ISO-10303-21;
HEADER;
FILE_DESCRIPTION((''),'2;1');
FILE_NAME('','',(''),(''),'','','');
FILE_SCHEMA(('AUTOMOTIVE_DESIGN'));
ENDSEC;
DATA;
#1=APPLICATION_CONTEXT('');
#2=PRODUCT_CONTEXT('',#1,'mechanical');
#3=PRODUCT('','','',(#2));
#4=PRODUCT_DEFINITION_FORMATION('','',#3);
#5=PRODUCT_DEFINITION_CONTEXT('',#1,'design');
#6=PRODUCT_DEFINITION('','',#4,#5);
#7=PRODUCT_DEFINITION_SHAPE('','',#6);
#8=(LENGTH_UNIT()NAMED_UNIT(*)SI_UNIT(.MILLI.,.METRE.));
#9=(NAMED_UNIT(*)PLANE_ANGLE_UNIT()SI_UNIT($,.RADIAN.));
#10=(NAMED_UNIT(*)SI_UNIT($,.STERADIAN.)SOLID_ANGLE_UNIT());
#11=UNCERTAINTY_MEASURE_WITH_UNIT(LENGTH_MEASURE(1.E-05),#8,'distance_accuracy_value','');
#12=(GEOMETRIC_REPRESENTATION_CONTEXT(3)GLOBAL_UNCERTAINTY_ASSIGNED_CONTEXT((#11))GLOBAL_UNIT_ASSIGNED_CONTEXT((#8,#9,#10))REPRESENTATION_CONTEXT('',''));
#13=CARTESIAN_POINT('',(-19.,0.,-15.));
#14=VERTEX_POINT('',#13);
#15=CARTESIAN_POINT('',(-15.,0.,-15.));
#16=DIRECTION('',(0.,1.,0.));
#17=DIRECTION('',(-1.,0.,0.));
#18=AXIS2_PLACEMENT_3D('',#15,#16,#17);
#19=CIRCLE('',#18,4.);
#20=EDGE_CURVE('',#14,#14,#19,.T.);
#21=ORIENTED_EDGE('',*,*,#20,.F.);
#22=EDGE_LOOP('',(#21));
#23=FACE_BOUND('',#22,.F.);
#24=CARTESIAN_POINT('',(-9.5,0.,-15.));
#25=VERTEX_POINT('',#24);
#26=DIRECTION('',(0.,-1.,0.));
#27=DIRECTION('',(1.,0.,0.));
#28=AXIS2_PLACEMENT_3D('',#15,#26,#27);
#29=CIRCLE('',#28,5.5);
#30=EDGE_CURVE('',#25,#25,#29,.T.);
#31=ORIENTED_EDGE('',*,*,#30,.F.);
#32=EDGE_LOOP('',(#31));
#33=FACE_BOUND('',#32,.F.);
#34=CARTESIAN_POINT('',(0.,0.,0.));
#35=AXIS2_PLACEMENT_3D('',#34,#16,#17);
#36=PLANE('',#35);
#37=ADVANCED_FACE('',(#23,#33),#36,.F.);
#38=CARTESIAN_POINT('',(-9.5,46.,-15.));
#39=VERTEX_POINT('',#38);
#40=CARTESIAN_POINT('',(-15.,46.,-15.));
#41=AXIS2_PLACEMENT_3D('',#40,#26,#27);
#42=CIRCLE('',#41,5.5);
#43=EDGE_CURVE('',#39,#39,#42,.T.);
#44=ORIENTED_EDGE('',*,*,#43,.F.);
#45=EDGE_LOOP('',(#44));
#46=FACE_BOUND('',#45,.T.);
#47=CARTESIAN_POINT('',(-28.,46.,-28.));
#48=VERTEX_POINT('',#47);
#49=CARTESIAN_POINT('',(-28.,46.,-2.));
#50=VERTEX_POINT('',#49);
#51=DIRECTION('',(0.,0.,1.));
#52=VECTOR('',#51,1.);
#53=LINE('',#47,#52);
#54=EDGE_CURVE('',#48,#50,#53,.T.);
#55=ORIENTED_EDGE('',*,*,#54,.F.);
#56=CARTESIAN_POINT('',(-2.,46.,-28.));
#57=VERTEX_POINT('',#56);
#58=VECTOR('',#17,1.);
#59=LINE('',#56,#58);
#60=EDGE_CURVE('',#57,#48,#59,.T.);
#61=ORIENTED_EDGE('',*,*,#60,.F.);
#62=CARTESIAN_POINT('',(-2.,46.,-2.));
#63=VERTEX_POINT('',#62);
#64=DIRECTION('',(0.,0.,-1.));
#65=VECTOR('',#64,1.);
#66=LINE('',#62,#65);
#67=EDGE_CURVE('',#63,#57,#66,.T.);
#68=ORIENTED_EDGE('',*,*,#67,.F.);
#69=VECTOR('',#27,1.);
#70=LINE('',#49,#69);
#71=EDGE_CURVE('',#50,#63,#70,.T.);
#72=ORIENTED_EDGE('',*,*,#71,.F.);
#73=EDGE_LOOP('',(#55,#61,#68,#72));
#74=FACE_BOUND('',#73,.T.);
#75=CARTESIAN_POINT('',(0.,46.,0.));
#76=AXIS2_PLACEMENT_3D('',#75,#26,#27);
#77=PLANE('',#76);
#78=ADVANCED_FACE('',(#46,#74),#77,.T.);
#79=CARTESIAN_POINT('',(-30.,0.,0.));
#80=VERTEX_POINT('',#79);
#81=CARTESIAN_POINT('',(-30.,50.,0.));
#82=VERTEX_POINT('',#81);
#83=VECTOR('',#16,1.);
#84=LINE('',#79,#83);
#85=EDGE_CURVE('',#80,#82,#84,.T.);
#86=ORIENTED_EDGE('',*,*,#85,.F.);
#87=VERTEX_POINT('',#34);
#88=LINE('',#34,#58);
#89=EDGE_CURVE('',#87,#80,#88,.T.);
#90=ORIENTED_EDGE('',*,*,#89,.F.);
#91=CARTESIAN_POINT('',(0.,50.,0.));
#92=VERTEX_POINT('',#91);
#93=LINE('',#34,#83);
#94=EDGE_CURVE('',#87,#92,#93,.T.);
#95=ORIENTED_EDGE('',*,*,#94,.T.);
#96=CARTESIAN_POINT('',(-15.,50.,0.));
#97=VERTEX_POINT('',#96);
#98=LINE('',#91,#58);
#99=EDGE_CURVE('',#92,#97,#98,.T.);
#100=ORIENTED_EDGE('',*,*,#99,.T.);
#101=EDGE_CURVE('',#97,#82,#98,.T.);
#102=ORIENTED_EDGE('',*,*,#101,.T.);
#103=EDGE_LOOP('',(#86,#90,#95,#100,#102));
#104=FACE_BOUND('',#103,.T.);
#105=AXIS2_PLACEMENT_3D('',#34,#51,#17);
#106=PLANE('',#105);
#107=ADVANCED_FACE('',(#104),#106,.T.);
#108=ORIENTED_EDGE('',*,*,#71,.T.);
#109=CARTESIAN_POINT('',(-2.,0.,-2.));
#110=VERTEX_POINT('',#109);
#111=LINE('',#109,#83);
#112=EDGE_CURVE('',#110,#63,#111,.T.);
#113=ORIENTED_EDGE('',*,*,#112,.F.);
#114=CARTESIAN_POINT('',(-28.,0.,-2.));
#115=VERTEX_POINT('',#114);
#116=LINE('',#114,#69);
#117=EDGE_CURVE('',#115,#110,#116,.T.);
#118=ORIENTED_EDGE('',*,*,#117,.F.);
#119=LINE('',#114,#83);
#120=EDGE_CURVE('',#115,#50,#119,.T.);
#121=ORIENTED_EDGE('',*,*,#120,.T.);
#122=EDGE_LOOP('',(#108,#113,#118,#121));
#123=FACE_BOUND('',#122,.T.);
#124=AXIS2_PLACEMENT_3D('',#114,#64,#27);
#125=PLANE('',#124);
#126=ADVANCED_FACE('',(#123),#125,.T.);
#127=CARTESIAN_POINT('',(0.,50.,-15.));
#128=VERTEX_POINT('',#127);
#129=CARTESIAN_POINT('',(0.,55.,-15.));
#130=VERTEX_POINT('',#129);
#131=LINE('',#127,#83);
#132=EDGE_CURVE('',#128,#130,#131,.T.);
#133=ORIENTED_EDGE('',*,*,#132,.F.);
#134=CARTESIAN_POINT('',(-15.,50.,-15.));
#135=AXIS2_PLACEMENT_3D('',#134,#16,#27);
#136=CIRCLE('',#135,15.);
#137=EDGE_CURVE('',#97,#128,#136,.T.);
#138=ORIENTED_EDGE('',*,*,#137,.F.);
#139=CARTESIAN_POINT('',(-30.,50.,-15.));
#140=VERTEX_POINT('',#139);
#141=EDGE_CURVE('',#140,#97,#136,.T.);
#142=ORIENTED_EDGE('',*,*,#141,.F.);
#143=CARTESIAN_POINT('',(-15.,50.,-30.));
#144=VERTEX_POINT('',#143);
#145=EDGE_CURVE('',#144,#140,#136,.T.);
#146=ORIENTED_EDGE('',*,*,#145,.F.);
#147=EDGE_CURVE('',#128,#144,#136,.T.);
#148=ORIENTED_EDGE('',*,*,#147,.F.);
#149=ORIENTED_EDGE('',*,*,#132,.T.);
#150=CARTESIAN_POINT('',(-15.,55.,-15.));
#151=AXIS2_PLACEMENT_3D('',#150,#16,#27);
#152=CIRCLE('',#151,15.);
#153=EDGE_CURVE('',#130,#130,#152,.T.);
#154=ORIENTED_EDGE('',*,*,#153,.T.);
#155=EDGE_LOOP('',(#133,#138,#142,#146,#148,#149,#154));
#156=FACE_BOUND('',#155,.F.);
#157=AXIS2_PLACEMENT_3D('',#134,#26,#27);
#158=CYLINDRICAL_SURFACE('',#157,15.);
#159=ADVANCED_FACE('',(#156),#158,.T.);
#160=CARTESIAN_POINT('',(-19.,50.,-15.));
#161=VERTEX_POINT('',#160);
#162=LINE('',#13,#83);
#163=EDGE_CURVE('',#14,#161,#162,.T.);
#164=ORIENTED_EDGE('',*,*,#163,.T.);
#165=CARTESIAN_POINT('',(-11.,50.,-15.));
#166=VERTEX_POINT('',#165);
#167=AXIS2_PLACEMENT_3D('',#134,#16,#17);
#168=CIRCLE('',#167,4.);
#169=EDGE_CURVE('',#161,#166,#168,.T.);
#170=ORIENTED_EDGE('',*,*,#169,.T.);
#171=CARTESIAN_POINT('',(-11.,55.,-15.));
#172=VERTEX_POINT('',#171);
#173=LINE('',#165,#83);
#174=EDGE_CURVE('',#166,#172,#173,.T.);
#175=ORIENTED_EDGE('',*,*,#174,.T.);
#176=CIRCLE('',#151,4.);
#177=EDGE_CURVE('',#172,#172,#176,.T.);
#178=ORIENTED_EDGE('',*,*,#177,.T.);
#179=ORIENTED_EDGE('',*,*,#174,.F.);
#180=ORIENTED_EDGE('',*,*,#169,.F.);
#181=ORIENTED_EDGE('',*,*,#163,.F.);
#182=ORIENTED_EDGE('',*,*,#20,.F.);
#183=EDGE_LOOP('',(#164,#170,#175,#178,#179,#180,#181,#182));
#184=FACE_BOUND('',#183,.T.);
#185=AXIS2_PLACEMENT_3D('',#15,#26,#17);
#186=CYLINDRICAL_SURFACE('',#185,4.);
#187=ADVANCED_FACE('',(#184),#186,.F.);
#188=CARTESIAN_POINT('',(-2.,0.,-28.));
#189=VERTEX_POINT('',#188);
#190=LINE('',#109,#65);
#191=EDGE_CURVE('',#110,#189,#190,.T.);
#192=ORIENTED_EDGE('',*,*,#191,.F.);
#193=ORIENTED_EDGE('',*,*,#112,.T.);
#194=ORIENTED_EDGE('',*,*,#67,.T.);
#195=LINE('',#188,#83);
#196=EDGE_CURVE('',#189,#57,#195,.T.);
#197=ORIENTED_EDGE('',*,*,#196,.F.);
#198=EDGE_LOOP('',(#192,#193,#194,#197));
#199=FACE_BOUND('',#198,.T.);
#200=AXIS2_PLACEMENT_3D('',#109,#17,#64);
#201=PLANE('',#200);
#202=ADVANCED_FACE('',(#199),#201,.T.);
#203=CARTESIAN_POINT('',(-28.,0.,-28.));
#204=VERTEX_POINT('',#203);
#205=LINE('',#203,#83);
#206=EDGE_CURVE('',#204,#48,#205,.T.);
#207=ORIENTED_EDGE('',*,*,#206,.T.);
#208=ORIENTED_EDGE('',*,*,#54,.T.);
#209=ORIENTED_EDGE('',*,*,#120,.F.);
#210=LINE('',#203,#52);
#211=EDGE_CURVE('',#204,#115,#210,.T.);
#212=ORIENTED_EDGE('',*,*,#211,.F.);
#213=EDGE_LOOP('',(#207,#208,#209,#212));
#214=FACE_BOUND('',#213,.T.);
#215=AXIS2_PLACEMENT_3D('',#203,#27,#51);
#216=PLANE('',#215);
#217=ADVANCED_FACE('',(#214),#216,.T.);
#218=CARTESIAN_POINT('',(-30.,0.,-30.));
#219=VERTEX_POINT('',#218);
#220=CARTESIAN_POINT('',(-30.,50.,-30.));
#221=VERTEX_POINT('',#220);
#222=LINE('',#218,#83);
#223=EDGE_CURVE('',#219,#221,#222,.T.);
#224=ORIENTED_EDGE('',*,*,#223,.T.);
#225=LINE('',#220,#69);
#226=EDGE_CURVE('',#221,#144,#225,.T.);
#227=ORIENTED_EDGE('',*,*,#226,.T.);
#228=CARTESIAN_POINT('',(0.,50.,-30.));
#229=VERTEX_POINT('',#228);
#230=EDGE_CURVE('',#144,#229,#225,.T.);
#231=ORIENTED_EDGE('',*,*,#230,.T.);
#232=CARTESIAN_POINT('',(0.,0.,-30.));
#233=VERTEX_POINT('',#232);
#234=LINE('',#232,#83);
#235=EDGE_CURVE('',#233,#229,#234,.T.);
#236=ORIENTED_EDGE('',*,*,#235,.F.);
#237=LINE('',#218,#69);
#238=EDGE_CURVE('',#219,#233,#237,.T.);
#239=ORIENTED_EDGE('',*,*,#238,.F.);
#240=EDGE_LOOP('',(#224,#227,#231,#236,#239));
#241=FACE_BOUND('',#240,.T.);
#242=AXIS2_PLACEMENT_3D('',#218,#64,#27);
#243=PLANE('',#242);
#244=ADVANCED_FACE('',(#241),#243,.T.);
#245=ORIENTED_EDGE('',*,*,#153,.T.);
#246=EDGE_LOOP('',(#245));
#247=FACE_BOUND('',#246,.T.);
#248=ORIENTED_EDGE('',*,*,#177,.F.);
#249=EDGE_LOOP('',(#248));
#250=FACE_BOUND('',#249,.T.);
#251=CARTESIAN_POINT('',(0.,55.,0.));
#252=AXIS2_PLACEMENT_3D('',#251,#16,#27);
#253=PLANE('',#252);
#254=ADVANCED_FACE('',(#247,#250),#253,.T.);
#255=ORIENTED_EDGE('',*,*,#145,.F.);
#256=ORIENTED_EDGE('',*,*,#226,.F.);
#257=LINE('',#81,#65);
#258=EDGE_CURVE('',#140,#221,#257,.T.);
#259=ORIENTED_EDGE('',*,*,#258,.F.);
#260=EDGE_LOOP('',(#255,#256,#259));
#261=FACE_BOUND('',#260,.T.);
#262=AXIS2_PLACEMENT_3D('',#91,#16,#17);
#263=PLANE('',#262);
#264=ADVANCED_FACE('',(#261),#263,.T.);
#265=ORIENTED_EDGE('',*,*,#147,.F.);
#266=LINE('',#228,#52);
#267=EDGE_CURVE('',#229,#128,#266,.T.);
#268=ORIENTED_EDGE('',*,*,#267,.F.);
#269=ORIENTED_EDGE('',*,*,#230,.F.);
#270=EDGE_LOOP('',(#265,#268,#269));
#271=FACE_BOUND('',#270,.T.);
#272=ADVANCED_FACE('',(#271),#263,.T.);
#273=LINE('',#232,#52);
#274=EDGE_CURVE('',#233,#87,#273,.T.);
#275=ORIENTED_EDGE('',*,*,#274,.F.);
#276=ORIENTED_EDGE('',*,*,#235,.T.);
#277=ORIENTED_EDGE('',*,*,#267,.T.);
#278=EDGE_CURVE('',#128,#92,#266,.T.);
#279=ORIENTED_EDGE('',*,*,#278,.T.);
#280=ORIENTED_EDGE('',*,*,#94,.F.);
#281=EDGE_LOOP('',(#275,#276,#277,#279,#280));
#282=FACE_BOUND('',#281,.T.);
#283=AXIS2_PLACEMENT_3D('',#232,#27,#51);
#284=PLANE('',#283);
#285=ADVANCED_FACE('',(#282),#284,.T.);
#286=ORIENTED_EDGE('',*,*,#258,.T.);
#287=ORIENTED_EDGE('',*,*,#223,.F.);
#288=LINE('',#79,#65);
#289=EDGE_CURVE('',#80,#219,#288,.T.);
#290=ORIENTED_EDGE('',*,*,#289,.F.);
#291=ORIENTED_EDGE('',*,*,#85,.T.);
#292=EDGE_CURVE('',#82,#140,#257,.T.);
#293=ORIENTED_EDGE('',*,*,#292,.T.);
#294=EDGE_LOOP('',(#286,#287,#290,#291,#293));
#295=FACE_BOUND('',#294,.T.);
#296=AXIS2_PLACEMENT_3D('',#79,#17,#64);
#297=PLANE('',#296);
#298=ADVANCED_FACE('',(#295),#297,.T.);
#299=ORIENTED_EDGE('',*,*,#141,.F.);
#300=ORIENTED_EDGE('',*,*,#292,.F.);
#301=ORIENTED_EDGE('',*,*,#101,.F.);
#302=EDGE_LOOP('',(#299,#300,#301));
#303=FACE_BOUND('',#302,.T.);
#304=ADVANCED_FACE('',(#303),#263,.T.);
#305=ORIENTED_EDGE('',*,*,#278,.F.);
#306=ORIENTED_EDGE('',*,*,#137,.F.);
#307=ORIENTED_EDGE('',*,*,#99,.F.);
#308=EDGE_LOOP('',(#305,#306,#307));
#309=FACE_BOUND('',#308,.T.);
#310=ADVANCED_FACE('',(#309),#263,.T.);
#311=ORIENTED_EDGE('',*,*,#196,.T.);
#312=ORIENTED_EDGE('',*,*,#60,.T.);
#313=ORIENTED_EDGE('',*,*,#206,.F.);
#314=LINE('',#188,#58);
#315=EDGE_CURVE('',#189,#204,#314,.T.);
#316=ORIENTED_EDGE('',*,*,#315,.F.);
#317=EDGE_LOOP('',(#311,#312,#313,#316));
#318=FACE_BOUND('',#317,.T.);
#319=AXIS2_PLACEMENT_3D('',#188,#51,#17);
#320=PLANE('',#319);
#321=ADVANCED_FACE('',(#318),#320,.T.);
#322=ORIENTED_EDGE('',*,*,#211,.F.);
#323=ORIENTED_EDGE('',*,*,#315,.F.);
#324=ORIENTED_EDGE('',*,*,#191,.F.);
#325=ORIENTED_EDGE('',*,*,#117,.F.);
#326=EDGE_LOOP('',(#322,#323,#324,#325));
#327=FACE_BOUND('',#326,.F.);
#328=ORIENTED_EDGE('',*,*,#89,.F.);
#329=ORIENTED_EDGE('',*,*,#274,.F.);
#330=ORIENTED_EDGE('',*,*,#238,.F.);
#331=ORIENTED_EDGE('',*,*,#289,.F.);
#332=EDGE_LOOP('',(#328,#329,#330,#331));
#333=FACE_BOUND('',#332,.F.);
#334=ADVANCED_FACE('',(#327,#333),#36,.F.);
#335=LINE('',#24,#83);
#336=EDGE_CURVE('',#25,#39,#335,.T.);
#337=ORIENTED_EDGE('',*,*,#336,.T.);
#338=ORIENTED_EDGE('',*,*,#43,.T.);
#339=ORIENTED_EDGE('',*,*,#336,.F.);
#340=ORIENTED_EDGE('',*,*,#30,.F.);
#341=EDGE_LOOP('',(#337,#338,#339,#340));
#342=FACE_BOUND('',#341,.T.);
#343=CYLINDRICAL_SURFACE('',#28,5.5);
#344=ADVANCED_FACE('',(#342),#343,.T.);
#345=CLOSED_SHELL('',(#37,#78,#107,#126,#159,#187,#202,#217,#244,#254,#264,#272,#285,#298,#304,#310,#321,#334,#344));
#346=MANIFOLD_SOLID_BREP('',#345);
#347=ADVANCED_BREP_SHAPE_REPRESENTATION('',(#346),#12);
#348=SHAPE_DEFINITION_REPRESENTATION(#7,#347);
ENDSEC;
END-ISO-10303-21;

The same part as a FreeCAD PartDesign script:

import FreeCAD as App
import Part
import Sketcher
from FreeCAD import Vector

doc = App.newDocument("Part")
body = doc.addObject("PartDesign::Body", "Body")

# Sketch on XZ plane
sketch1 = body.newObject("Sketcher::SketchObject", "Sketch")
sketch1.AttachmentSupport = (doc.getObject("XZ_Plane"), [""])
sketch1.MapMode = "FlatFace"
sketch1.addGeometry(Part.LineSegment(Vector(-30, 0, 0), Vector(0, 0, 0)), False)
sketch1.addGeometry(Part.LineSegment(Vector(0, 0, 0), Vector(0, -30, 0)), False)
sketch1.addGeometry(Part.LineSegment(Vector(0, -30, 0), Vector(-30, -30, 0)), False)
sketch1.addGeometry(Part.LineSegment(Vector(-30, -30, 0), Vector(-30, 0, 0)), False)
sketch1.addGeometry(Part.Circle(Vector(-15, -15, 0), Vector(0, 0, 1), 4), False)
sketch1.addConstraint(Sketcher.Constraint("Coincident", 0, 2, 1, 1))
sketch1.addConstraint(Sketcher.Constraint("Coincident", 1, 2, 2, 1))
sketch1.addConstraint(Sketcher.Constraint("Coincident", 2, 2, 3, 1))
sketch1.addConstraint(Sketcher.Constraint("Coincident", 3, 2, 0, 1))
sketch1.addConstraint(Sketcher.Constraint("Horizontal", 0))
sketch1.addConstraint(Sketcher.Constraint("Vertical", 1))
sketch1.addConstraint(Sketcher.Constraint("Horizontal", 2))
sketch1.addConstraint(Sketcher.Constraint("Vertical", 3))
sketch1.addConstraint(Sketcher.Constraint("Coincident", 0, 2, -1, 1))
sketch1.addConstraint(Sketcher.Constraint("Equal", 2, 1))
sketch1.addConstraint(Sketcher.Constraint("Diameter", 4, 8.0))
sketch1.addConstraint(Sketcher.Constraint("DistanceX", 0, 1, 0, 2, 30.0))
sketch1.addConstraint(Sketcher.Constraint("DistanceX", 4, 3, -1, 1, 15.0))
sketch1.addConstraint(Sketcher.Constraint("DistanceY", 4, 3, -1, 1, 15.0))
pad1 = body.newObject("PartDesign::Pad", "Pad")
pad1.Profile = sketch1
pad1.Length = 50
pad1.Reversed = True

# Sketch on XZ plane
sketch2 = body.newObject("Sketcher::SketchObject", "Sketch001")
sketch2.AttachmentSupport = (doc.getObject("XZ_Plane"), [""])
sketch2.MapMode = "FlatFace"
sketch2.AttachmentOffset = App.Placement(Vector(0, 0, -50), App.Rotation())
sketch2.addGeometry(Part.Circle(Vector(-15, -15, 0), Vector(0, 0, 1), 15), False)
sketch2.addGeometry(Part.Circle(Vector(-15, -15, 0), Vector(0, 0, 1), 4), False)
sketch2.addConstraint(Sketcher.Constraint("Coincident", 1, 3, 0, 3))
sketch2.addConstraint(Sketcher.Constraint("Diameter", 0, 30.0))
sketch2.addConstraint(Sketcher.Constraint("Diameter", 1, 8.0))
sketch2.addConstraint(Sketcher.Constraint("DistanceX", 0, 3, -1, 1, 15.0))
sketch2.addConstraint(Sketcher.Constraint("DistanceY", 0, 3, -1, 1, 15.0))
pad2 = body.newObject("PartDesign::Pad", "Pad001")
pad2.Profile = sketch2
pad2.Length = 5
pad2.Reversed = True

# Sketch on XZ plane
sketch3 = body.newObject("Sketcher::SketchObject", "Sketch002")
sketch3.AttachmentSupport = (doc.getObject("XZ_Plane"), [""])
sketch3.MapMode = "FlatFace"
sketch3.addGeometry(Part.LineSegment(Vector(-28, -28, 0), Vector(-2, -28, 0)), False)
sketch3.addGeometry(Part.LineSegment(Vector(-2, -28, 0), Vector(-2, -2, 0)), False)
sketch3.addGeometry(Part.LineSegment(Vector(-2, -2, 0), Vector(-28, -2, 0)), False)
sketch3.addGeometry(Part.LineSegment(Vector(-28, -2, 0), Vector(-28, -28, 0)), False)
sketch3.addGeometry(Part.Circle(Vector(-15, -15, 0), Vector(0, 0, 1), 6), False)
sketch3.addConstraint(Sketcher.Constraint("Coincident", 0, 2, 1, 1))
sketch3.addConstraint(Sketcher.Constraint("Coincident", 1, 2, 2, 1))
sketch3.addConstraint(Sketcher.Constraint("Coincident", 2, 2, 3, 1))
sketch3.addConstraint(Sketcher.Constraint("Coincident", 3, 2, 0, 1))
sketch3.addConstraint(Sketcher.Constraint("Horizontal", 0))
sketch3.addConstraint(Sketcher.Constraint("Vertical", 1))
sketch3.addConstraint(Sketcher.Constraint("Horizontal", 2))
sketch3.addConstraint(Sketcher.Constraint("Vertical", 3))
sketch3.addConstraint(Sketcher.Constraint("Equal", 2, 1))
sketch3.addConstraint(Sketcher.Constraint("Diameter", 4, 11.0))
sketch3.addConstraint(Sketcher.Constraint("DistanceX", 0, 1, 0, 2, 26.0))
sketch3.addConstraint(Sketcher.Constraint("DistanceX", 4, 3, -1, 1, 15.0))
sketch3.addConstraint(Sketcher.Constraint("DistanceY", 4, 3, -1, 1, 15.0))
sketch3.addConstraint(Sketcher.Constraint("DistanceX", 0, 2, -1, 1, 2.0))
sketch3.addConstraint(Sketcher.Constraint("DistanceY", 0, 2, -1, 1, 28.0))
pocket1 = body.newObject("PartDesign::Pocket", "Pocket")
pocket1.Profile = sketch3
pocket1.Length = 46

doc.recompute()
